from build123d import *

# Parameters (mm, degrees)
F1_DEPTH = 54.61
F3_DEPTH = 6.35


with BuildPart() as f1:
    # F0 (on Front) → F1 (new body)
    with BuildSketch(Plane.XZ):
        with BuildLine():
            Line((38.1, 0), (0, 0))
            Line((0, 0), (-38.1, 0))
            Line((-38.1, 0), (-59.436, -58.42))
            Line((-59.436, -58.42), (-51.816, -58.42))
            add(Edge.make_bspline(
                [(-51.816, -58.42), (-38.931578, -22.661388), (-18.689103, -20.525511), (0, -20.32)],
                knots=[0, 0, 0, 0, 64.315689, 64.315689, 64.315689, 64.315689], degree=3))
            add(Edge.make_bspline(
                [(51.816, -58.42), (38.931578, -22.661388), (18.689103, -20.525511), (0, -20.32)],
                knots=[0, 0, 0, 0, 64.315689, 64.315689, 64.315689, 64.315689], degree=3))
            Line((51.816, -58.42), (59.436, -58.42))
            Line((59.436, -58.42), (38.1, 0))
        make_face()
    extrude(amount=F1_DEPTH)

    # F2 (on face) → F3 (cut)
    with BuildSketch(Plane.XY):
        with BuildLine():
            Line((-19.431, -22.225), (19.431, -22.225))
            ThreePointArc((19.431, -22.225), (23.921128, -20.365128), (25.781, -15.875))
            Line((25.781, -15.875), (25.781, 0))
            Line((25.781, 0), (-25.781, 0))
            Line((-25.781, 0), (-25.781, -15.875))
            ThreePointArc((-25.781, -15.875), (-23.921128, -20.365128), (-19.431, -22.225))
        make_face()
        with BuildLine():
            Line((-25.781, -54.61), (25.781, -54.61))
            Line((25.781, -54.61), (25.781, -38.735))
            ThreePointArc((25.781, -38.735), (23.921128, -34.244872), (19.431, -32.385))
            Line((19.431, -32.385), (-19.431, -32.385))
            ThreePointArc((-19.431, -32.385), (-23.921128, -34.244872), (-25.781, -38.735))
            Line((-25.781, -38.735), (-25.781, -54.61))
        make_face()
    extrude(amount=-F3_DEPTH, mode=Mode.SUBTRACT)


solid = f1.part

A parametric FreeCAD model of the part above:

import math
import FreeCAD as App
import Part
import Sketcher
Q = App.Units.Quantity

doc = App.newDocument("Part")
body = doc.addObject("PartDesign::Body", "Body")

sketch1 = body.newObject("Sketcher::SketchObject", "Sketch")
sketch1.AttachmentSupport = (doc.getObject("XZ_Plane"), [""])
sketch1.MapMode = "FlatFace"
sketch1.addGeometry([
    Part.LineSegment(App.Vector(38.1, 0, 0), App.Vector(-38.1, 0, 0)),
    Part.LineSegment(App.Vector(-38.1, 0, 0), App.Vector(-59.436, -58.42, 0)),
    Part.LineSegment(App.Vector(-59.436, -58.42, 0), App.Vector(-51.816, -58.42, 0)),
    Part.BSplineCurve([App.Vector(-51.816, -58.42, 0), App.Vector(-38.931578, -22.661388, 0), App.Vector(-18.689103, -20.525511, 0), App.Vector(0, -20.32, 0)], [4, 4], [0, 64.315689], False, 3, [1, 1, 1, 1], False),
    Part.BSplineCurve([App.Vector(51.816, -58.42, 0), App.Vector(38.931578, -22.661388, 0), App.Vector(18.689103, -20.525511, 0), App.Vector(0, -20.32, 0)], [4, 4], [0, 64.315689], False, 3, [1, 1, 1, 1], False),
    Part.LineSegment(App.Vector(51.816, -58.42, 0), App.Vector(59.436, -58.42, 0)),
    Part.LineSegment(App.Vector(59.436, -58.42, 0), App.Vector(38.1, 0, 0)),
], False)
sketch1.addConstraint([
    Sketcher.Constraint("Block", 3),
    Sketcher.Constraint("Block", 4),
    Sketcher.Constraint("Coincident", 0, 2, 1, 1),
    Sketcher.Constraint("Coincident", 1, 2, 2, 1),
    Sketcher.Constraint("Coincident", 2, 2, 3, 1),
    Sketcher.Constraint("Coincident", 4, 1, 5, 1),
    Sketcher.Constraint("Coincident", 5, 2, 6, 1),
    Sketcher.Constraint("Coincident", 6, 2, 0, 1),
    Sketcher.Constraint("Horizontal", 0),
    Sketcher.Constraint("Horizontal", 2),
    Sketcher.Constraint("Horizontal", 5),
    Sketcher.Constraint("Symmetric", 0, 2, 6, 2, -1, 1),
    Sketcher.Constraint("Equal", 2, 5),
    Sketcher.Constraint("DistanceX", 0, 2, 0, 1, Q("3 in")),
    Sketcher.Constraint("DistanceX", 2, 1, 2, 2, Q("0.3 in")),
])
pad1 = body.newObject("PartDesign::Pad", "Pad")
pad1.Profile = sketch1
pad1.Length = Q("2.15 in")

sketch2 = body.newObject("Sketcher::SketchObject", "Sketch001")
sketch2.AttachmentSupport = (doc.getObject("XY_Plane"), [""])
sketch2.MapMode = "FlatFace"
sketch2.addGeometry([
    Part.LineSegment(App.Vector(-19, -22, 0), App.Vector(19, -22, 0)),
    Part.ArcOfCircle(Part.Circle(App.Vector(19, -16, 0), App.Vector(0, 0, 1), 6), math.radians(-90), math.radians(0)),
    Part.LineSegment(App.Vector(26, -16, 0), App.Vector(26, 0, 0)),
    Part.LineSegment(App.Vector(26, 0, 0), App.Vector(-26, 0, 0)),
    Part.LineSegment(App.Vector(-26, 0, 0), App.Vector(-26, -16, 0)),
    Part.ArcOfCircle(Part.Circle(App.Vector(-19, -16, 0), App.Vector(0, 0, 1), 6), math.radians(-180), math.radians(-90)),
    Part.LineSegment(App.Vector(-26, -55, 0), App.Vector(26, -55, 0)),
    Part.LineSegment(App.Vector(26, -55, 0), App.Vector(26, -39, 0)),
    Part.ArcOfCircle(Part.Circle(App.Vector(19, -39, 0), App.Vector(0, 0, 1), 6), math.radians(0), math.radians(90)),
    Part.LineSegment(App.Vector(19, -32, 0), App.Vector(-19, -32, 0)),
    Part.ArcOfCircle(Part.Circle(App.Vector(-19, -39, 0), App.Vector(0, 0, 1), 6), math.radians(90), math.radians(180)),
    Part.LineSegment(App.Vector(-26, -39, 0), App.Vector(-26, -55, 0)),
], False)
sketch2.addConstraint([
    Sketcher.Constraint("Tangent", 0, 2, 1, 1),
    Sketcher.Constraint("Tangent", 1, 2, 2, 1),
    Sketcher.Constraint("Coincident", 2, 2, 3, 1),
    Sketcher.Constraint("Coincident", 3, 2, 4, 1),
    Sketcher.Constraint("Tangent", 4, 2, 5, 1),
    Sketcher.Constraint("Tangent", 5, 2, 0, 1),
    Sketcher.Constraint("Coincident", 6, 2, 7, 1),
    Sketcher.Constraint("Tangent", 7, 2, 8, 1),
    Sketcher.Constraint("Tangent", 8, 2, 9, 1),
    Sketcher.Constraint("Tangent", 9, 2, 10, 1),
    Sketcher.Constraint("Tangent", 10, 2, 11, 1),
    Sketcher.Constraint("Coincident", 11, 2, 6, 1),
    Sketcher.Constraint("Horizontal", 0),
    Sketcher.Constraint("Vertical", 2),
    Sketcher.Constraint("Horizontal", 3),
    Sketcher.Constraint("Vertical", 4),
    Sketcher.Constraint("Horizontal", 6),
    Sketcher.Constraint("Vertical", 7),
    Sketcher.Constraint("Horizontal", 9),
    Sketcher.Constraint("Vertical", 11),
    Sketcher.Constraint("Equal", 1, 5),
    Sketcher.Constraint("Equal", 5, 8),
    Sketcher.Constraint("Equal", 8, 10),
    Sketcher.Constraint("Symmetric", 2, 2, 3, 2, -1, 1),
    Sketcher.Constraint("Vertical", 1, 3, 8, 3),
    Sketcher.Constraint("Vertical", 5, 3, 10, 3),
    Sketcher.Constraint("Equal", 4, 7),
    Sketcher.Constraint("Radius", 1, Q("0.25 in")),
    Sketcher.Constraint("DistanceX", 0, 1, 0, 2, Q("1.53 in")),
    Sketcher.Constraint("DistanceY", 8, 3, 1, 3, Q("0.9 in")),
    Sketcher.Constraint("DistanceY", 2, 1, 2, 2, Q("0.625 in")),
])
pocket1 = body.newObject("PartDesign::Pocket", "Pocket")
pocket1.Profile = sketch2
pocket1.Length = Q("0.25 in")

doc.recompute()
